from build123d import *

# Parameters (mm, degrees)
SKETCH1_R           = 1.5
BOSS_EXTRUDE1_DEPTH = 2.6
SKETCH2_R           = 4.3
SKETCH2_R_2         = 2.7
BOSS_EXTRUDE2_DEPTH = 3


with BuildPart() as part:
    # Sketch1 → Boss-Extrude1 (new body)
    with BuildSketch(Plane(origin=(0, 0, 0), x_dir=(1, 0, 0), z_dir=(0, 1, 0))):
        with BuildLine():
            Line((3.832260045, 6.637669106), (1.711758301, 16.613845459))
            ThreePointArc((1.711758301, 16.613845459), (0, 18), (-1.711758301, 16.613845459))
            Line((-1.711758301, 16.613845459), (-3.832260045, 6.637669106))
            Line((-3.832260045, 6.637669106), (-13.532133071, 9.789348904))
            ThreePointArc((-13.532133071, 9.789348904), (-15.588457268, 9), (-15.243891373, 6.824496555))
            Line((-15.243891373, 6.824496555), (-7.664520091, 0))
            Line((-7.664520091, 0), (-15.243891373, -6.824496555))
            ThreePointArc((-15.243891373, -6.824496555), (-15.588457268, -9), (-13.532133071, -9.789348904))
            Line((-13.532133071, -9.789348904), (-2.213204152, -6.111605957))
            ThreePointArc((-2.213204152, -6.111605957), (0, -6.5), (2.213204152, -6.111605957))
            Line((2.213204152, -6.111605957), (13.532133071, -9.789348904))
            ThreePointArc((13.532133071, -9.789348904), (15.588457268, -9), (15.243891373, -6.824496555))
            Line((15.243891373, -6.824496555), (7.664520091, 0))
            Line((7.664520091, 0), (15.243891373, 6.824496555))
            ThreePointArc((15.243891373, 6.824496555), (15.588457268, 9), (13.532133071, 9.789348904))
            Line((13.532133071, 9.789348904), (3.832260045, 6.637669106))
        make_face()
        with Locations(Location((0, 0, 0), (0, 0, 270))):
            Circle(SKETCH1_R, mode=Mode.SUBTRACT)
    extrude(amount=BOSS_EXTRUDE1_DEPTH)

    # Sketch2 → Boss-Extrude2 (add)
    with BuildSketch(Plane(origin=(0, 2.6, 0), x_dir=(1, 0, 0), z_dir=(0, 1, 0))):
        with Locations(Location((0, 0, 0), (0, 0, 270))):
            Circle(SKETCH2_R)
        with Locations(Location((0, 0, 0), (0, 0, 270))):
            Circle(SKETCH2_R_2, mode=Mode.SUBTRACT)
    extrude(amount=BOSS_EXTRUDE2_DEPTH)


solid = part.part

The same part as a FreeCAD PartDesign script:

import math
import FreeCAD as App
import Part
import Sketcher
from FreeCAD import Vector
Q = App.Units.Quantity

doc = App.newDocument("Part")
params = doc.addObject("Spreadsheet::Sheet", "Params")
for row, (alias, value) in enumerate([
    ("sketch1_diameter", "3 mm"),
    ("sketch1_radius", "6.5 mm"),
    ("sketch1_radius2", "1.75 mm"),
    ("pad1_length", "2.6 mm"),
    ("sketch2_diameter", "8.6 mm"),
    ("sketch2_diameter2", "5.4 mm"),
    ("pad2_length", "3 mm"),
], start=1):
    params.set(f"A{row}", alias)
    params.set(f"B{row}", "=" + value)
    params.setAlias(f"B{row}", alias)

body = doc.addObject("PartDesign::Body", "Body")

sketch1 = body.newObject("Sketcher::SketchObject", "Sketch")
sketch1.AttachmentSupport = (doc.getObject("XZ_Plane"), [""])
sketch1.MapMode = "FlatFace"
sketch1.addGeometry([
    Part.LineSegment(Vector(3.83226, -6.637669, 0), Vector(1.711758, -16.613845, 0)),
    Part.ArcOfCircle(Part.Circle(Vector(0, -16.25, 0), Vector(0, 0, 1), 1.75), math.radians(-168), math.radians(-12)),
    Part.LineSegment(Vector(-1.711758, -16.613845, 0), Vector(-3.83226, -6.637669, 0)),
    Part.LineSegment(Vector(-3.83226, -6.637669, 0), Vector(-13.532133, -9.789349, 0)),
    Part.ArcOfCircle(Part.Circle(Vector(-14.072913, -8.125, 0), Vector(0, 0, 1), 1.75), math.radians(132), math.radians(288)),
    Part.LineSegment(Vector(-15.243891, -6.824497, 0), Vector(-7.66452, 0, 0)),
    Part.LineSegment(Vector(-7.66452, 0, 0), Vector(-15.243891, 6.824497, 0)),
    Part.ArcOfCircle(Part.Circle(Vector(-14.072913, 8.125, 0), Vector(0, 0, 1), 1.75), math.radians(72), math.radians(228)),
    Part.LineSegment(Vector(-13.532133, 9.789349, 0), Vector(-2.213204, 6.111606, 0)),
    Part.ArcOfCircle(Part.Circle(Vector(0, 0, 0), Vector(0, 0, 1), 6.5), math.radians(70.09309), math.radians(109.90691)),
    Part.LineSegment(Vector(2.213204, 6.111606, 0), Vector(13.532133, 9.789349, 0)),
    Part.ArcOfCircle(Part.Circle(Vector(14.072913, 8.125, 0), Vector(0, 0, 1), 1.75), math.radians(-48), math.radians(108)),
    Part.LineSegment(Vector(15.243891, 6.824497, 0), Vector(7.66452, 0, 0)),
    Part.LineSegment(Vector(7.66452, 0, 0), Vector(15.243891, -6.824497, 0)),
    Part.ArcOfCircle(Part.Circle(Vector(14.072913, -8.125, 0), Vector(0, 0, 1), 1.75), math.radians(-108), math.radians(48)),
    Part.LineSegment(Vector(13.532133, -9.789349, 0), Vector(3.83226, -6.637669, 0)),
    Part.Circle(Vector(0, 0, 0), Vector(0, 0, 1), 1.5),
], False)
sketch1.addConstraint([
    Sketcher.Constraint("Tangent", 0, 2, 1, 2),
    Sketcher.Constraint("Tangent", 1, 1, 2, 1),
    Sketcher.Constraint("Coincident", 2, 2, 3, 1),
    Sketcher.Constraint("Tangent", 3, 2, 4, 2),
    Sketcher.Constraint("Tangent", 4, 1, 5, 1),
    Sketcher.Constraint("Coincident", 5, 2, 6, 1),
    Sketcher.Constraint("Tangent", 6, 2, 7, 2),
    Sketcher.Constraint("Tangent", 7, 1, 8, 1),
    Sketcher.Constraint("Coincident", 8, 2, 9, 2),
    Sketcher.Constraint("Coincident", 9, 1, 10, 1),
    Sketcher.Constraint("Tangent", 10, 2, 11, 2),
    Sketcher.Constraint("Tangent", 11, 1, 12, 1),
    Sketcher.Constraint("Coincident", 12, 2, 13, 1),
    Sketcher.Constraint("Tangent", 13, 2, 14, 2),
    Sketcher.Constraint("Tangent", 14, 1, 15, 1),
    Sketcher.Constraint("Coincident", 15, 2, 0, 1),
    Sketcher.Constraint("Coincident", 9, 3, -1, 1),
    Sketcher.Constraint("Coincident", 16, 3, -1, 1),
    Sketcher.Constraint("Equal", 1, 4),
    Sketcher.Constraint("Equal", 4, 7),
    Sketcher.Constraint("Equal", 7, 11),
    Sketcher.Constraint("Equal", 11, 14),
    Sketcher.Constraint("Symmetric", 4, 3, 11, 3, -1, 1),
    Sketcher.Constraint("Symmetric", 7, 3, 14, 3, -1, 1),
    Sketcher.Constraint("Symmetric", 5, 2, 12, 2, -1, 1),
    Sketcher.Constraint("Symmetric", 7, 3, 11, 3, -2),
    Sketcher.Constraint("Symmetric", 0, 2, 1, 1, -2),
    Sketcher.Constraint("PointOnObject", 5, 2, -1),
    Sketcher.Constraint("Parallel", 3, 10),
    Sketcher.Constraint("Parallel", 8, 15),
    Sketcher.Constraint("Horizontal", 8, 2, 9, 1),
    Sketcher.Constraint("Equal", 2, 3),
    Sketcher.Constraint("Equal", 3, 5),
    Sketcher.Constraint("Diameter", 16, Q("3 mm")),
    Sketcher.Constraint("Radius", 9, Q("6.5 mm")),
    Sketcher.Constraint("Angle", 0, Q("-102 deg")),
    Sketcher.Constraint("Angle", 3, Q("-162 deg")),
    Sketcher.Constraint("Angle", 5, Q("42 deg")),
    Sketcher.Constraint("Radius", 1, Q("1.75 mm")),
    Sketcher.Constraint("DistanceY", 1, 3, -1, 1, Q("16.25 mm")),
])
sketch1.setExpression("Constraints[33]", "Params.sketch1_diameter")
sketch1.setExpression("Constraints[34]", "Params.sketch1_radius")
sketch1.setExpression("Constraints[38]", "Params.sketch1_radius2")
pad1 = body.newObject("PartDesign::Pad", "Pad")
pad1.Profile = sketch1
pad1.setExpression("Length", "Params.pad1_length")
pad1.Reversed = True

sketch2 = body.newObject("Sketcher::SketchObject", "Sketch001")
sketch2.AttachmentSupport = (doc.getObject("XZ_Plane"), [""])
sketch2.MapMode = "FlatFace"
sketch2.AttachmentOffset = App.Placement(Vector(0, 0, -2.6), App.Rotation())
sketch2.addGeometry([
    Part.Circle(Vector(0, 0, 0), Vector(0, 0, 1), 4.3),
    Part.Circle(Vector(0, 0, 0), Vector(0, 0, 1), 2.7),
], False)
sketch2.addConstraint([
    Sketcher.Constraint("Coincident", 0, 3, -1, 1),
    Sketcher.Constraint("Coincident", 1, 3, -1, 1),
    Sketcher.Constraint("Diameter", 0, Q("8.6 mm")),
    Sketcher.Constraint("Diameter", 1, Q("5.4 mm")),
])
sketch2.setExpression("Constraints[2]", "Params.sketch2_diameter")
sketch2.setExpression("Constraints[3]", "Params.sketch2_diameter2")
pad2 = body.newObject("PartDesign::Pad", "Pad001")
pad2.Profile = sketch2
pad2.setExpression("Length", "Params.pad2_length")
pad2.Reversed = True

doc.recompute()
